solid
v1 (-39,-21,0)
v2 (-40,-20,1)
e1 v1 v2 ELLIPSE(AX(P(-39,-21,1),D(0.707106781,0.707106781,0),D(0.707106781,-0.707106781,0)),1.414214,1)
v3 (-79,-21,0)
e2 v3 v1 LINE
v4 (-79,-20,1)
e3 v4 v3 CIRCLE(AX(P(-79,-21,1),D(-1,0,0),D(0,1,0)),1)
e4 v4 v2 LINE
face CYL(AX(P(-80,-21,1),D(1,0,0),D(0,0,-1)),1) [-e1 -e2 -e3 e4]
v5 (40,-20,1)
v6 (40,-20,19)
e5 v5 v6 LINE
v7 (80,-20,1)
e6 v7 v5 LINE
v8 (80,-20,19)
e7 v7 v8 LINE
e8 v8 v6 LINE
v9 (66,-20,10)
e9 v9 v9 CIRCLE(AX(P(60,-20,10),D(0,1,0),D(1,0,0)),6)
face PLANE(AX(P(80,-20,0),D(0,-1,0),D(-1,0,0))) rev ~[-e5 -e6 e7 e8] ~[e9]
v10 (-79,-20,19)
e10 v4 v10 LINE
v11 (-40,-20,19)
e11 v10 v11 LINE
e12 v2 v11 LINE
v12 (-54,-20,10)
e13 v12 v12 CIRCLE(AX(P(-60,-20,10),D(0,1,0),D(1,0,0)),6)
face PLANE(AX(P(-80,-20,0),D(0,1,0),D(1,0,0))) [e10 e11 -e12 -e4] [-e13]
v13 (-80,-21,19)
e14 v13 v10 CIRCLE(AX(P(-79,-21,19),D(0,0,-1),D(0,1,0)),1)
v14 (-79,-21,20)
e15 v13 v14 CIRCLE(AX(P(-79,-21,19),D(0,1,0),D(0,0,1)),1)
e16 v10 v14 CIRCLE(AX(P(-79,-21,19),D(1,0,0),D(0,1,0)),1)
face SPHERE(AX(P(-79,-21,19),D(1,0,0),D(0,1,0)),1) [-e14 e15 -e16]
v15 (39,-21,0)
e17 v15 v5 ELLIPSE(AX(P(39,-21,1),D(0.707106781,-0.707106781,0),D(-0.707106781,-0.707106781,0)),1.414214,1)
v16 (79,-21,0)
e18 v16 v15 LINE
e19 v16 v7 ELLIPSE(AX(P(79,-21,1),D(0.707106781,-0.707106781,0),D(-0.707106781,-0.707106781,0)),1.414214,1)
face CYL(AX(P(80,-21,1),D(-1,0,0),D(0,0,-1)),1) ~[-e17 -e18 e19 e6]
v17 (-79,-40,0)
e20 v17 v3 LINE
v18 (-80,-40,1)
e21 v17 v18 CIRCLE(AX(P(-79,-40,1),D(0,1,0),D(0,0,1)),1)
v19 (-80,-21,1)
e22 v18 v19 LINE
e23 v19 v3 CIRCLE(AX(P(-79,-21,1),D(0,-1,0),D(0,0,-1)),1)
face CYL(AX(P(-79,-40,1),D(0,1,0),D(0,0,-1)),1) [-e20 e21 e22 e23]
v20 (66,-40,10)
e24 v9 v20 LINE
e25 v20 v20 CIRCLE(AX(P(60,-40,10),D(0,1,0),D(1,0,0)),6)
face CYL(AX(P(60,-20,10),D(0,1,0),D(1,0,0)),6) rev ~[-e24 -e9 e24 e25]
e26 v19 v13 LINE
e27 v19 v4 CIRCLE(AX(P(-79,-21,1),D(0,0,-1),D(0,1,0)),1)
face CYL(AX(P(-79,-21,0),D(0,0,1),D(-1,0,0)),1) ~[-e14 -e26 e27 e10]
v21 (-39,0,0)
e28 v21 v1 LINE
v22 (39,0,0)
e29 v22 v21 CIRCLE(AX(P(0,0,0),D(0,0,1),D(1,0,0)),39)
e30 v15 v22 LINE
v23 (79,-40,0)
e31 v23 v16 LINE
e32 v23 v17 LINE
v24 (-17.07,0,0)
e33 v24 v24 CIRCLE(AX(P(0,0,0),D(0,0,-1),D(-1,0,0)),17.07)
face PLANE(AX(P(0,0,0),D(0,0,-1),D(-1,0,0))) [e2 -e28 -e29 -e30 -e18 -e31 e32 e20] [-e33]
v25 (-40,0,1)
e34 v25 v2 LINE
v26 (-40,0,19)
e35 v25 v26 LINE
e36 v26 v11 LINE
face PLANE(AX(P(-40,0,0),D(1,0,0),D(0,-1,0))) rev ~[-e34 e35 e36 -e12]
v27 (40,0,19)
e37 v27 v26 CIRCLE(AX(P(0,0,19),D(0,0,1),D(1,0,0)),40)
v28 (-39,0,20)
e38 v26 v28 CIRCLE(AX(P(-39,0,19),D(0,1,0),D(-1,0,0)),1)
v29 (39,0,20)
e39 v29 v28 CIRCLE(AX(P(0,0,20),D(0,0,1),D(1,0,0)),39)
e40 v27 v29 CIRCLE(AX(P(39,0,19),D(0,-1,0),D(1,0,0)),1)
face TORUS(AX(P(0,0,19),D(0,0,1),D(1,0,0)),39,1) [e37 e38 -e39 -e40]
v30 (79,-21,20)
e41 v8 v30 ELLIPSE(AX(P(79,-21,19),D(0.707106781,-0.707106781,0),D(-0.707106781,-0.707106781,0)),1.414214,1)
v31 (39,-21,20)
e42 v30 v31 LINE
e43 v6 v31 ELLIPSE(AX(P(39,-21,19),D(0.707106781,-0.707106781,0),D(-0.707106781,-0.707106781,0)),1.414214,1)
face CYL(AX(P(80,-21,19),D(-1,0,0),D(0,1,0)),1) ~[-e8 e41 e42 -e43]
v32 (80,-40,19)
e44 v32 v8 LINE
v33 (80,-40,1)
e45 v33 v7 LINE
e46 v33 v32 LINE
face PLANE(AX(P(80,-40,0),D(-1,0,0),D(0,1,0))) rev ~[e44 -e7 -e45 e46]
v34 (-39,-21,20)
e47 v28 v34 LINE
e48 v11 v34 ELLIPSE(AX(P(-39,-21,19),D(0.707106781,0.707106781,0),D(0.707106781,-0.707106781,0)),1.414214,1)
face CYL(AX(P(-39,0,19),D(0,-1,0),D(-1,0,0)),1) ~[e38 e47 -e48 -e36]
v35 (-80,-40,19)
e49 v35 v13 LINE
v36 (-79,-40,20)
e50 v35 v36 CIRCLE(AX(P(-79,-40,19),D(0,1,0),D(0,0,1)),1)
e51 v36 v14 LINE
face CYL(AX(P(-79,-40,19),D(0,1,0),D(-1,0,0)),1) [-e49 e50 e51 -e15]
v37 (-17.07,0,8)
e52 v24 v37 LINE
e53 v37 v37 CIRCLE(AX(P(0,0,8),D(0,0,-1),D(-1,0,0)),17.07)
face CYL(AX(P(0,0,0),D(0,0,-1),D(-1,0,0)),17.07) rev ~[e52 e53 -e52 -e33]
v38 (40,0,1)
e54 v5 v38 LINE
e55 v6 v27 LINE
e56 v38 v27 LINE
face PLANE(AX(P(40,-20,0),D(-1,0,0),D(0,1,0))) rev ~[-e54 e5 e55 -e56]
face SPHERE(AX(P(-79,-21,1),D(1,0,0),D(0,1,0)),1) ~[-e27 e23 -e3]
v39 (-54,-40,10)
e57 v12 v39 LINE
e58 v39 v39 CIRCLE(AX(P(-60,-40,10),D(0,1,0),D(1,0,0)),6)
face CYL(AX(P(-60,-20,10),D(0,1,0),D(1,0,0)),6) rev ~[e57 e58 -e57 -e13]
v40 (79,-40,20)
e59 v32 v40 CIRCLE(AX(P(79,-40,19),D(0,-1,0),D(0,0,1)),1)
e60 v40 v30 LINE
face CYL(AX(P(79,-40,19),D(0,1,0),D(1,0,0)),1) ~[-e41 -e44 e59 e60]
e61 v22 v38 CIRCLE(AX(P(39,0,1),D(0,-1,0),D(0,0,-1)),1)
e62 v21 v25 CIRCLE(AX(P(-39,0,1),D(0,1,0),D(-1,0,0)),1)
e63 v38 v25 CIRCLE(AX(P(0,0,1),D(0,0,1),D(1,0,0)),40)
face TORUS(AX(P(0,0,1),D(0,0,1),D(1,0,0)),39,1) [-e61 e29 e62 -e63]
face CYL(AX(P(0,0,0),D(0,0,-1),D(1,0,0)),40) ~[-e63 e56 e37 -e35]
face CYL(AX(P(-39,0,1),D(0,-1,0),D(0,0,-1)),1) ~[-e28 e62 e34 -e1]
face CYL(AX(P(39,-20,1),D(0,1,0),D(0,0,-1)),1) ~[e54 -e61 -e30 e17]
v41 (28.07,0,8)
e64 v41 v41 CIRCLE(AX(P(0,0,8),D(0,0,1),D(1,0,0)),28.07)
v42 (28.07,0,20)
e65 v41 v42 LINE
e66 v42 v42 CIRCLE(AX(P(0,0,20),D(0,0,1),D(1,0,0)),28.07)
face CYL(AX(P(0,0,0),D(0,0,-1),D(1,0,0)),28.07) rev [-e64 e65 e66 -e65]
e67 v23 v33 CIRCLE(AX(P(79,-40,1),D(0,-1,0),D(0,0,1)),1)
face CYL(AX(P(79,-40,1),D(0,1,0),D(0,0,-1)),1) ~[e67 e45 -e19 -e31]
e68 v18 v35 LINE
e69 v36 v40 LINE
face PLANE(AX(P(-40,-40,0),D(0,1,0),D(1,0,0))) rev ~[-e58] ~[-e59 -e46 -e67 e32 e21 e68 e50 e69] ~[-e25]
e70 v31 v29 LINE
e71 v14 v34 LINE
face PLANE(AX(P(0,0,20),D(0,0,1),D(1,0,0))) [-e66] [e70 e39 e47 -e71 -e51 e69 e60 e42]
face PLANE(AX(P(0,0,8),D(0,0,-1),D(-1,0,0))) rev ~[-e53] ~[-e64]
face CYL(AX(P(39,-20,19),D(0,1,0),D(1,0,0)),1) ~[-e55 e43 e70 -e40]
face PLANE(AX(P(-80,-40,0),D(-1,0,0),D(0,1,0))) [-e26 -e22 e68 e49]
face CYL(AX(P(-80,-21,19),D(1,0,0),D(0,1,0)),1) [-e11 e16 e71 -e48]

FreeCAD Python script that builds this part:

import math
import FreeCAD as App
import Part
import Sketcher
from FreeCAD import Vector


def edges_at(feature, points):
    """Names of the edges that pass closest to the given points."""
    edges = feature.Shape.Edges
    near = lambda p: min(range(len(edges)), key=lambda i: edges[i].distToShape(Part.Vertex(*p))[0])
    return sorted({f"Edge{near(p) + 1}" for p in points})

doc = App.newDocument("Part")
params = doc.addObject("Spreadsheet::Sheet", "Params")
for row, (alias, value) in enumerate([
    ("sketch1_diameter", "56.14 mm"),
    ("sketch1_radius", "40 mm"),
    ("sketch1_width", "40 mm"),
    ("sketch1_height", "20 mm"),
    ("pad1_length", "20 mm"),
    ("sketch2_diameter", "56.14 mm"),
    ("sketch2_diameter2", "34.14 mm"),
    ("pad2_length", "8 mm"),
    ("sketch3_diameter", "12 mm"),
    ("pocket1_length", "20 mm"),
    ("sketch4_diameter", "12 mm"),
    ("pocket2_length", "20 mm"),
    ("fillet_radius", "1 mm"),
], start=1):
    params.set(f"A{row}", alias)
    params.set(f"B{row}", "=" + value)
    params.setAlias(f"B{row}", alias)

body = doc.addObject("PartDesign::Body", "Body")

sketch1 = body.newObject("Sketcher::SketchObject", "Sketch")
sketch1.AttachmentSupport = (doc.getObject("XY_Plane"), [""])
sketch1.MapMode = "FlatFace"
sketch1.addGeometry(Part.LineSegment(Vector(-40, 0, 0), Vector(-40, -20, 0)), False)
sketch1.addGeometry(Part.LineSegment(Vector(-40, -20, 0), Vector(-80, -20, 0)), False)
sketch1.addGeometry(Part.LineSegment(Vector(-80, -20, 0), Vector(-80, -40, 0)), False)
sketch1.addGeometry(Part.LineSegment(Vector(-80, -40, 0), Vector(80, -40, 0)), False)
sketch1.addGeometry(Part.LineSegment(Vector(80, -40, 0), Vector(80, -20, 0)), False)
sketch1.addGeometry(Part.LineSegment(Vector(80, -20, 0), Vector(40, -20, 0)), False)
sketch1.addGeometry(Part.LineSegment(Vector(40, -20, 0), Vector(40, 0, 0)), False)
sketch1.addGeometry(Part.ArcOfCircle(Part.Circle(Vector(0, 0, 0), Vector(0, 0, 1), 40), math.radians(0), math.radians(180)), False)
sketch1.addGeometry(Part.Circle(Vector(0, 0, 0), Vector(0, 0, 1), 28), False)
sketch1.addConstraint(Sketcher.Constraint("Coincident", 0, 2, 1, 1))
sketch1.addConstraint(Sketcher.Constraint("Coincident", 1, 2, 2, 1))
sketch1.addConstraint(Sketcher.Constraint("Coincident", 2, 2, 3, 1))
sketch1.addConstraint(Sketcher.Constraint("Coincident", 3, 2, 4, 1))
sketch1.addConstraint(Sketcher.Constraint("Coincident", 4, 2, 5, 1))
sketch1.addConstraint(Sketcher.Constraint("Coincident", 5, 2, 6, 1))
sketch1.addConstraint(Sketcher.Constraint("Tangent", 6, 2, 7, 1))
sketch1.addConstraint(Sketcher.Constraint("Tangent", 7, 2, 0, 1))
sketch1.addConstraint(Sketcher.Constraint("Vertical", 0))
sketch1.addConstraint(Sketcher.Constraint("Horizontal", 1))
sketch1.addConstraint(Sketcher.Constraint("Vertical", 2))
sketch1.addConstraint(Sketcher.Constraint("Horizontal", 3))
sketch1.addConstraint(Sketcher.Constraint("Vertical", 4))
sketch1.addConstraint(Sketcher.Constraint("Horizontal", 5))
sketch1.addConstraint(Sketcher.Constraint("Vertical", 6))
sketch1.addConstraint(Sketcher.Constraint("Coincident", 7, 3, -1, 1))
sketch1.addConstraint(Sketcher.Constraint("Coincident", 8, 3, -1, 1))
sketch1.addConstraint(Sketcher.Constraint("Symmetric", 1, 2, 4, 2, -2))
sketch1.addConstraint(Sketcher.Constraint("Equal", 0, 2))
sketch1.addConstraint(Sketcher.Constraint("Diameter", 8, 56.14))
sketch1.addConstraint(Sketcher.Constraint("Radius", 7, 40.0))
sketch1.addConstraint(Sketcher.Constraint("DistanceX", 1, 2, 1, 1, 40.0))
sketch1.addConstraint(Sketcher.Constraint("DistanceY", 0, 2, 0, 1, 20.0))
sketch1.setExpression("Constraints[19]", "Params.sketch1_diameter")
sketch1.setExpression("Constraints[20]", "Params.sketch1_radius")
sketch1.setExpression("Constraints[21]", "Params.sketch1_width")
sketch1.setExpression("Constraints[22]", "Params.sketch1_height")
pad1 = body.newObject("PartDesign::Pad", "Pad")
pad1.Profile = sketch1
pad1.setExpression("Length", "Params.pad1_length")

sketch2 = body.newObject("Sketcher::SketchObject", "Sketch001")
sketch2.AttachmentSupport = (doc.getObject("XY_Plane"), [""])
sketch2.MapMode = "FlatFace"
sketch2.addGeometry(Part.Circle(Vector(0, 0, 0), Vector(0, 0, 1), 28), False)
sketch2.addGeometry(Part.Circle(Vector(0, 0, 0), Vector(0, 0, 1), 17), False)
sketch2.addConstraint(Sketcher.Constraint("Coincident", 0, 3, -1, 1))
sketch2.addConstraint(Sketcher.Constraint("Coincident", 1, 3, -1, 1))
sketch2.addConstraint(Sketcher.Constraint("Diameter", 0, 56.14))
sketch2.addConstraint(Sketcher.Constraint("Diameter", 1, 34.14))
sketch2.setExpression("Constraints[2]", "Params.sketch2_diameter")
sketch2.setExpression("Constraints[3]", "Params.sketch2_diameter2")
pad2 = body.newObject("PartDesign::Pad", "Pad001")
pad2.Profile = sketch2
pad2.setExpression("Length", "Params.pad2_length")

sketch3 = body.newObject("Sketcher::SketchObject", "Sketch002")
sketch3.AttachmentSupport = (doc.getObject("XZ_Plane"), [""])
sketch3.MapMode = "FlatFace"
sketch3.AttachmentOffset = App.Placement(Vector(0, 0, 20), App.Rotation())
sketch3.addGeometry(Part.Circle(Vector(-60, 10, 0), Vector(0, 0, 1), 6), False)
sketch3.addConstraint(Sketcher.Constraint("Diameter", 0, 12.0))
sketch3.addConstraint(Sketcher.Constraint("DistanceX", 0, 3, -1, 1, 60.0))
sketch3.addConstraint(Sketcher.Constraint("DistanceY", -1, 1, 0, 3, 10.0))
sketch3.setExpression("Constraints[0]", "Params.sketch3_diameter")
pocket1 = body.newObject("PartDesign::Pocket", "Pocket")
pocket1.Profile = sketch3
pocket1.setExpression("Length", "Params.pocket1_length")
pocket1.Reversed = True

sketch4 = body.newObject("Sketcher::SketchObject", "Sketch003")
sketch4.AttachmentSupport = (doc.getObject("XZ_Plane"), [""])
sketch4.MapMode = "FlatFace"
sketch4.AttachmentOffset = App.Placement(Vector(0, 0, 20), App.Rotation())
sketch4.addGeometry(Part.Circle(Vector(60, 10, 0), Vector(0, 0, 1), 6), False)
sketch4.addConstraint(Sketcher.Constraint("Diameter", 0, 12.0))
sketch4.addConstraint(Sketcher.Constraint("DistanceX", -1, 1, 0, 3, 60.0))
sketch4.addConstraint(Sketcher.Constraint("DistanceY", -1, 1, 0, 3, 10.0))
sketch4.setExpression("Constraints[0]", "Params.sketch4_diameter")
pocket2 = body.newObject("PartDesign::Pocket", "Pocket001")
pocket2.Profile = sketch4
pocket2.setExpression("Length", "Params.pocket2_length")
pocket2.Reversed = True
doc.recompute()

fillet = body.newObject("PartDesign::Fillet", "Fillet")
fillet.Base = (pocket2, edges_at(pocket2, [
    (-60, -20, 20),
    (-60, -20, 0),
    (-80, -20, 10),
    (-80, -30, 0),
    (-80, -30, 20),
    (60, -20, 20),
    (60, -20, 0),
    (80, -30, 20),
    (80, -30, 0),
    (0, 40, 20),
    (-40, -10, 20),
    (40, -10, 20),
    (0, 40, 0),
    (-40, -10, 0),
    (40, -10, 0),
]))
fillet.setExpression("Radius", "Params.fillet_radius")

doc.recompute()
